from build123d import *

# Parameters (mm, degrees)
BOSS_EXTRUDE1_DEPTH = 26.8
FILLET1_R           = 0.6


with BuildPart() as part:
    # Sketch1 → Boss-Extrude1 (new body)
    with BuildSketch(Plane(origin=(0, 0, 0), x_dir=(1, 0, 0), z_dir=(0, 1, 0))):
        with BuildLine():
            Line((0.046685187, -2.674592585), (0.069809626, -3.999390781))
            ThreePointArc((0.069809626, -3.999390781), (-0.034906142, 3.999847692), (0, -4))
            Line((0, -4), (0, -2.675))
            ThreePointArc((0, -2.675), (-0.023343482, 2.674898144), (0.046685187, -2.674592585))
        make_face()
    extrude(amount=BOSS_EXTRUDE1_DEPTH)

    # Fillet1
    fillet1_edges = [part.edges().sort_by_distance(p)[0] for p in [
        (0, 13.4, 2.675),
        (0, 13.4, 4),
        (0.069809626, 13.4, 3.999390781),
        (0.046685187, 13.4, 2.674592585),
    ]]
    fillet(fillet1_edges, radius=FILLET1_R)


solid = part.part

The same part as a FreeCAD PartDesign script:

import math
import FreeCAD as App
import Part
import Sketcher
Q = App.Units.Quantity


def edges_at(feature, points):
    """Names of the edges that pass closest to the given points."""
    edges = feature.Shape.Edges
    near = lambda p: min(range(len(edges)), key=lambda i: edges[i].distToShape(Part.Vertex(*p))[0])
    return sorted({f"Edge{near(p) + 1}" for p in points})

doc = App.newDocument("Part")
body = doc.addObject("PartDesign::Body", "Body")

sketch1 = doc.addObject("Sketcher::SketchObject", "Sketch")
body.addObject(sketch1)
sketch1.AttachmentSupport = (doc.XZ_Plane, [""])
sketch1.MapMode = "FlatFace"
sketch1.addGeometry([
    Part.LineSegment(App.Vector(0.047, 2.675, 0), App.Vector(0.07, 3.999, 0)),
    Part.ArcOfCircle(Part.Circle(App.Vector(0, 0, 0), App.Vector(0, 0, 1), 4), math.radians(90), math.radians(449)),
    Part.LineSegment(App.Vector(0, 4, 0), App.Vector(0, 2.675, 0)),
    Part.ArcOfCircle(Part.Circle(App.Vector(0, 0, 0), App.Vector(0, 0, 1), 2.675), math.radians(90), math.radians(449)),
], False)
sketch1.addConstraint([
    Sketcher.Constraint("Coincident", 0, 2, 1, 2),
    Sketcher.Constraint("Coincident", 1, 1, 2, 1),
    Sketcher.Constraint("Coincident", 2, 2, 3, 1),
    Sketcher.Constraint("Coincident", 3, 2, 0, 1),
    Sketcher.Constraint("Vertical", 2),
    Sketcher.Constraint("Coincident", 1, 3, -1, 1),
    Sketcher.Constraint("Coincident", 3, 3, -1, 1),
    Sketcher.Constraint("PointOnObject", 1, 1, -2),
    Sketcher.Constraint("Radius", 1, 4.0),
    Sketcher.Constraint("Angle", 0, Q("89 deg")),
    Sketcher.Constraint("Radius", 3, 2.675),
    Sketcher.Constraint("DistanceX", -1, 1, 0, 2, 0.06981),
])
pad1 = doc.addObject("PartDesign::Pad", "Pad")
body.addObject(pad1)
pad1.Profile = sketch1
pad1.Length = 26.8
pad1.Reversed = True
doc.recompute()

fillet = doc.addObject("PartDesign::Fillet", "Fillet")
body.addObject(fillet)
fillet.Base = (pad1, edges_at(pad1, [
    (0, 13.4, 2.675),
    (0, 13.4, 4),
    (0.07, 13.4, 3.999),
    (0.047, 13.4, 2.675),
]))
fillet.Radius = 0.6

doc.recompute()
